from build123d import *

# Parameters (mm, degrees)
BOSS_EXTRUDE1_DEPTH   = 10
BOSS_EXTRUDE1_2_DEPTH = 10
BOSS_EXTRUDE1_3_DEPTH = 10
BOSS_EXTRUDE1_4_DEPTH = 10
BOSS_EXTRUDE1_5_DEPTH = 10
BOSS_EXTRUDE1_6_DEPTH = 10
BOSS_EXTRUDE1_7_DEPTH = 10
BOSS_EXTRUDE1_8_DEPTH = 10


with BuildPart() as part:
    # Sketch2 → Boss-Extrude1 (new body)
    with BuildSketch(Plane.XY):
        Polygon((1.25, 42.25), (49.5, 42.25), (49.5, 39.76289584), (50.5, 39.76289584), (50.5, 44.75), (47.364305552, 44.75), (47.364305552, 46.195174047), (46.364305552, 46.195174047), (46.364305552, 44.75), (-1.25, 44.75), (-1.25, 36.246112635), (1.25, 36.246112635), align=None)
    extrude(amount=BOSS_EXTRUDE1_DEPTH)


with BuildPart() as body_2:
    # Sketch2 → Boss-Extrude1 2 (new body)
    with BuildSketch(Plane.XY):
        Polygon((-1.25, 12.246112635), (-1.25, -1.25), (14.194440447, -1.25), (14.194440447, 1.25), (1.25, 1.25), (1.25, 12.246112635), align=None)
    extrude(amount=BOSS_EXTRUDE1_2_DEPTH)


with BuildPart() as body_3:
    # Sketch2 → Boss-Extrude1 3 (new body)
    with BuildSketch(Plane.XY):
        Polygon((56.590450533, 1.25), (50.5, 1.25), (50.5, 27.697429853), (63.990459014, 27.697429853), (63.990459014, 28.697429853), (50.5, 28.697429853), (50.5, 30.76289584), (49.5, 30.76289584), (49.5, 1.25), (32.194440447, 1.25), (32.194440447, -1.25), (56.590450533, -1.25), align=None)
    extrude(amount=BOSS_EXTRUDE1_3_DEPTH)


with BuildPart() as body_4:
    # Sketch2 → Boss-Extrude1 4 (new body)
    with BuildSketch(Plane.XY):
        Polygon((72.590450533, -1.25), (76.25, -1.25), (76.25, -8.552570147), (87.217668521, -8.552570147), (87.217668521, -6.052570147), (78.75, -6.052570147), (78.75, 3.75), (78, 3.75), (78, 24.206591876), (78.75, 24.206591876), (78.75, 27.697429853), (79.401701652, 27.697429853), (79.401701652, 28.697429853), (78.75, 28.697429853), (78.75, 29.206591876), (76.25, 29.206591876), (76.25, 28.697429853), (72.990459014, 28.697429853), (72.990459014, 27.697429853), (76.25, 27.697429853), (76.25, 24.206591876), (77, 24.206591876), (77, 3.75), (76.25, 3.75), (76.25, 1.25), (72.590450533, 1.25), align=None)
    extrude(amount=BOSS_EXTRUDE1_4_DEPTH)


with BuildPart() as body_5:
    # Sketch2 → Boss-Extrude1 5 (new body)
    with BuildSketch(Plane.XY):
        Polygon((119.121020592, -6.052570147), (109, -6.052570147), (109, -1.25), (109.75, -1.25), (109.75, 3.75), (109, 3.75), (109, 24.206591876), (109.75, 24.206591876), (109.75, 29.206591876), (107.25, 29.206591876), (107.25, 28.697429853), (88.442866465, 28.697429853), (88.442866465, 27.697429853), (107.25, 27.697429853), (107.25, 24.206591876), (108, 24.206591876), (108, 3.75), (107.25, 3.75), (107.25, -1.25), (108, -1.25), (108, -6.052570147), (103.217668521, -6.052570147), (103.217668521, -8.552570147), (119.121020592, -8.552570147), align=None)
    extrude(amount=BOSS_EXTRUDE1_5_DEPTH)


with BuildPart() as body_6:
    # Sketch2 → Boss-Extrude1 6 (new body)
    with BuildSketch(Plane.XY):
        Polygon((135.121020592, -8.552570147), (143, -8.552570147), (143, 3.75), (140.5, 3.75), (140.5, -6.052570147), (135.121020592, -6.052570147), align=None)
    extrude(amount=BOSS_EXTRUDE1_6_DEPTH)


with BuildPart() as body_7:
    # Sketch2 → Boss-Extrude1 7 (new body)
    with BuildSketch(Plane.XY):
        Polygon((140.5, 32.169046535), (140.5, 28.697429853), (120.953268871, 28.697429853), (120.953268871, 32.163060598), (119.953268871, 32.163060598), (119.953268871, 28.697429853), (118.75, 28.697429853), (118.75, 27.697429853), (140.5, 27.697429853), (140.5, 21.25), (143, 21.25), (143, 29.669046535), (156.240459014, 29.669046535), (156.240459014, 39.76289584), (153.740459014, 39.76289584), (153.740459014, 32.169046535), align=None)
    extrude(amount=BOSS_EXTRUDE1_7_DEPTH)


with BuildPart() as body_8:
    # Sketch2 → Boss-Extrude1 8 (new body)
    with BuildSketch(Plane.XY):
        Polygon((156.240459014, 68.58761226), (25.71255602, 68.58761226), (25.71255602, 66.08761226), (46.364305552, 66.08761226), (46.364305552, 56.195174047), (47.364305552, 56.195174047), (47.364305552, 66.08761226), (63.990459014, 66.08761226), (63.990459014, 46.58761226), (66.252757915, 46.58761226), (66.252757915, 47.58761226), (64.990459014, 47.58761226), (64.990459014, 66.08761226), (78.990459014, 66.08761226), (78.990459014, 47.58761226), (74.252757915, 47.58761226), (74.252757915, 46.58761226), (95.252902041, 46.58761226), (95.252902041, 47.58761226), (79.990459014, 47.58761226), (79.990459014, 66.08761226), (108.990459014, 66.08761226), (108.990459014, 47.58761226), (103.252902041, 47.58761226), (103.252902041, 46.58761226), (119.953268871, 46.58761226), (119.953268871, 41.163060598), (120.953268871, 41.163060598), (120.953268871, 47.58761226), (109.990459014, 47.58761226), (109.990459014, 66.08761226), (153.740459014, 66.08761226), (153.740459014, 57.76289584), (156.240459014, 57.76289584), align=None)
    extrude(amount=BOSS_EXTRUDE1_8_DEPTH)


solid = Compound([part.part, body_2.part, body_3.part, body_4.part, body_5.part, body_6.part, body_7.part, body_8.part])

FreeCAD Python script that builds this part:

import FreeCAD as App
import Part
import Sketcher

V = App.Vector

doc = App.newDocument("Part")
body = doc.addObject("PartDesign::Body", "Body")

# Sketch on XY plane
sketch1 = body.newObject("Sketcher::SketchObject", "Sketch")
sketch1.AttachmentSupport = (doc.getObject("XY_Plane"), [""])
sketch1.MapMode = "FlatFace"
sketch1.addGeometry(Part.LineSegment(V(1.25, 42.25, 0), V(49.5, 42.25, 0)), False)
sketch1.addGeometry(Part.LineSegment(V(49.5, 42.25, 0), V(49.5, 39.762896, 0)), False)
sketch1.addGeometry(Part.LineSegment(V(49.5, 39.762896, 0), V(50.5, 39.762896, 0)), False)
sketch1.addGeometry(Part.LineSegment(V(50.5, 39.762896, 0), V(50.5, 44.75, 0)), False)
sketch1.addGeometry(Part.LineSegment(V(50.5, 44.75, 0), V(47.364306, 44.75, 0)), False)
sketch1.addGeometry(Part.LineSegment(V(47.364306, 44.75, 0), V(47.364306, 46.195174, 0)), False)
sketch1.addGeometry(Part.LineSegment(V(47.364306, 46.195174, 0), V(46.364306, 46.195174, 0)), False)
sketch1.addGeometry(Part.LineSegment(V(46.364306, 46.195174, 0), V(46.364306, 44.75, 0)), False)
sketch1.addGeometry(Part.LineSegment(V(46.364306, 44.75, 0), V(-1.25, 44.75, 0)), False)
sketch1.addGeometry(Part.LineSegment(V(-1.25, 44.75, 0), V(-1.25, 36.246113, 0)), False)
sketch1.addGeometry(Part.LineSegment(V(-1.25, 36.246113, 0), V(1.25, 36.246113, 0)), False)
sketch1.addGeometry(Part.LineSegment(V(1.25, 36.246113, 0), V(1.25, 42.25, 0)), False)
sketch1.addConstraint(Sketcher.Constraint("Coincident", 0, 2, 1, 1))
sketch1.addConstraint(Sketcher.Constraint("Coincident", 1, 2, 2, 1))
sketch1.addConstraint(Sketcher.Constraint("Coincident", 2, 2, 3, 1))
sketch1.addConstraint(Sketcher.Constraint("Coincident", 3, 2, 4, 1))
sketch1.addConstraint(Sketcher.Constraint("Coincident", 4, 2, 5, 1))
sketch1.addConstraint(Sketcher.Constraint("Coincident", 5, 2, 6, 1))
sketch1.addConstraint(Sketcher.Constraint("Coincident", 6, 2, 7, 1))
sketch1.addConstraint(Sketcher.Constraint("Coincident", 7, 2, 8, 1))
sketch1.addConstraint(Sketcher.Constraint("Coincident", 8, 2, 9, 1))
sketch1.addConstraint(Sketcher.Constraint("Coincident", 9, 2, 10, 1))
sketch1.addConstraint(Sketcher.Constraint("Coincident", 10, 2, 11, 1))
sketch1.addConstraint(Sketcher.Constraint("Coincident", 11, 2, 0, 1))
sketch1.addConstraint(Sketcher.Constraint("Horizontal", 0))
sketch1.addConstraint(Sketcher.Constraint("Vertical", 1))
sketch1.addConstraint(Sketcher.Constraint("Horizontal", 2))
sketch1.addConstraint(Sketcher.Constraint("Vertical", 3))
sketch1.addConstraint(Sketcher.Constraint("Horizontal", 4))
sketch1.addConstraint(Sketcher.Constraint("Vertical", 5))
sketch1.addConstraint(Sketcher.Constraint("Horizontal", 6))
sketch1.addConstraint(Sketcher.Constraint("Vertical", 7))
sketch1.addConstraint(Sketcher.Constraint("Horizontal", 8))
sketch1.addConstraint(Sketcher.Constraint("Vertical", 9))
sketch1.addConstraint(Sketcher.Constraint("Horizontal", 10))
sketch1.addConstraint(Sketcher.Constraint("Vertical", 11))
sketch1.addConstraint(Sketcher.Constraint("Horizontal", 4, 2, 7, 2))
sketch1.addConstraint(Sketcher.Constraint("Equal", 2, 6))
sketch1.addConstraint(Sketcher.Constraint("DistanceX", 2, 1, 2, 2, 1.0))
sketch1.addConstraint(Sketcher.Constraint("DistanceX", 10, 1, 10, 2, 2.5))
sketch1.addConstraint(Sketcher.Constraint("DistanceX", 0, 1, 0, 2, 48.25))
sketch1.addConstraint(Sketcher.Constraint("DistanceX", -1, 1, 0, 2, 49.5))
sketch1.addConstraint(Sketcher.Constraint("DistanceY", 0, 2, 3, 2, 2.5))
sketch1.addConstraint(Sketcher.Constraint("DistanceY", -1, 1, 0, 2, 42.25))
sketch1.addConstraint(Sketcher.Constraint("DistanceX", 4, 2, 4, 1, 3.135694))
sketch1.addConstraint(Sketcher.Constraint("DistanceY", 1, 2, 1, 1, 2.487104))
sketch1.addConstraint(Sketcher.Constraint("DistanceY", 5, 1, 5, 2, 1.445174))
sketch1.addConstraint(Sketcher.Constraint("DistanceY", 9, 2, 9, 1, 8.503887))
pad1 = body.newObject("PartDesign::Pad", "Pad")
pad1.Profile = sketch1
pad1.Length = 10
body2 = doc.addObject("PartDesign::Body", "Body001")

# Sketch on XY plane
sketch2 = body2.newObject("Sketcher::SketchObject", "Sketch001")
sketch2.AttachmentSupport = (doc.getObject("XY_Plane001"), [""])
sketch2.MapMode = "FlatFace"
sketch2.addGeometry(Part.LineSegment(V(-1.25, 12.246113, 0), V(-1.25, -1.25, 0)), False)
sketch2.addGeometry(Part.LineSegment(V(-1.25, -1.25, 0), V(14.19444, -1.25, 0)), False)
sketch2.addGeometry(Part.LineSegment(V(14.19444, -1.25, 0), V(14.19444, 1.25, 0)), False)
sketch2.addGeometry(Part.LineSegment(V(14.19444, 1.25, 0), V(1.25, 1.25, 0)), False)
sketch2.addGeometry(Part.LineSegment(V(1.25, 1.25, 0), V(1.25, 12.246113, 0)), False)
sketch2.addGeometry(Part.LineSegment(V(1.25, 12.246113, 0), V(-1.25, 12.246113, 0)), False)
sketch2.addConstraint(Sketcher.Constraint("Coincident", 0, 2, 1, 1))
sketch2.addConstraint(Sketcher.Constraint("Coincident", 1, 2, 2, 1))
sketch2.addConstraint(Sketcher.Constraint("Coincident", 2, 2, 3, 1))
sketch2.addConstraint(Sketcher.Constraint("Coincident", 3, 2, 4, 1))
sketch2.addConstraint(Sketcher.Constraint("Coincident", 4, 2, 5, 1))
sketch2.addConstraint(Sketcher.Constraint("Coincident", 5, 2, 0, 1))
sketch2.addConstraint(Sketcher.Constraint("Vertical", 0))
sketch2.addConstraint(Sketcher.Constraint("Horizontal", 1))
sketch2.addConstraint(Sketcher.Constraint("Vertical", 2))
sketch2.addConstraint(Sketcher.Constraint("Horizontal", 3))
sketch2.addConstraint(Sketcher.Constraint("Vertical", 4))
sketch2.addConstraint(Sketcher.Constraint("Horizontal", 5))
sketch2.addConstraint(Sketcher.Constraint("Symmetric", 0, 2, 3, 2, -1, 1))
sketch2.addConstraint(Sketcher.Constraint("Equal", 5, 2))
sketch2.addConstraint(Sketcher.Constraint("DistanceX", 5, 2, 5, 1, 2.5))
sketch2.addConstraint(Sketcher.Constraint("DistanceX", 1, 1, 1, 2, 15.44444))
sketch2.addConstraint(Sketcher.Constraint("DistanceY", 0, 2, 0, 1, 13.496113))
pad2 = body2.newObject("PartDesign::Pad", "Pad001")
pad2.Profile = sketch2
pad2.Length = 10
body3 = doc.addObject("PartDesign::Body", "Body002")

# Sketch on XY plane
sketch3 = body3.newObject("Sketcher::SketchObject", "Sketch002")
sketch3.AttachmentSupport = (doc.getObject("XY_Plane002"), [""])
sketch3.MapMode = "FlatFace"
sketch3.addGeometry(Part.LineSegment(V(56.590451, 1.25, 0), V(50.5, 1.25, 0)), False)
sketch3.addGeometry(Part.LineSegment(V(50.5, 1.25, 0), V(50.5, 27.69743, 0)), False)
sketch3.addGeometry(Part.LineSegment(V(50.5, 27.69743, 0), V(63.990459, 27.69743, 0)), False)
sketch3.addGeometry(Part.LineSegment(V(63.990459, 27.69743, 0), V(63.990459, 28.69743, 0)), False)
sketch3.addGeometry(Part.LineSegment(V(63.990459, 28.69743, 0), V(50.5, 28.69743, 0)), False)
sketch3.addGeometry(Part.LineSegment(V(50.5, 28.69743, 0), V(50.5, 30.762896, 0)), False)
sketch3.addGeometry(Part.LineSegment(V(50.5, 30.762896, 0), V(49.5, 30.762896, 0)), False)
sketch3.addGeometry(Part.LineSegment(V(49.5, 30.762896, 0), V(49.5, 1.25, 0)), False)
sketch3.addGeometry(Part.LineSegment(V(49.5, 1.25, 0), V(32.19444, 1.25, 0)), False)
sketch3.addGeometry(Part.LineSegment(V(32.19444, 1.25, 0), V(32.19444, -1.25, 0)), False)
sketch3.addGeometry(Part.LineSegment(V(32.19444, -1.25, 0), V(56.590451, -1.25, 0)), False)
sketch3.addGeometry(Part.LineSegment(V(56.590451, -1.25, 0), V(56.590451, 1.25, 0)), False)
sketch3.addConstraint(Sketcher.Constraint("Coincident", 0, 2, 1, 1))
sketch3.addConstraint(Sketcher.Constraint("Coincident", 1, 2, 2, 1))
sketch3.addConstraint(Sketcher.Constraint("Coincident", 2, 2, 3, 1))
sketch3.addConstraint(Sketcher.Constraint("Coincident", 3, 2, 4, 1))
sketch3.addConstraint(Sketcher.Constraint("Coincident", 4, 2, 5, 1))
sketch3.addConstraint(Sketcher.Constraint("Coincident", 5, 2, 6, 1))
sketch3.addConstraint(Sketcher.Constraint("Coincident", 6, 2, 7, 1))
sketch3.addConstraint(Sketcher.Constraint("Coincident", 7, 2, 8, 1))
sketch3.addConstraint(Sketcher.Constraint("Coincident", 8, 2, 9, 1))
sketch3.addConstraint(Sketcher.Constraint("Coincident", 9, 2, 10, 1))
sketch3.addConstraint(Sketcher.Constraint("Coincident", 10, 2, 11, 1))
sketch3.addConstraint(Sketcher.Constraint("Coincident", 11, 2, 0, 1))
sketch3.addConstraint(Sketcher.Constraint("Horizontal", 0))
sketch3.addConstraint(Sketcher.Constraint("Vertical", 1))
sketch3.addConstraint(Sketcher.Constraint("Horizontal", 2))
sketch3.addConstraint(Sketcher.Constraint("Vertical", 3))
sketch3.addConstraint(Sketcher.Constraint("Horizontal", 4))
sketch3.addConstraint(Sketcher.Constraint("Vertical", 5))
sketch3.addConstraint(Sketcher.Constraint("Horizontal", 6))
sketch3.addConstraint(Sketcher.Constraint("Vertical", 7))
sketch3.addConstraint(Sketcher.Constraint("Horizontal", 8))
sketch3.addConstraint(Sketcher.Constraint("Vertical", 9))
sketch3.addConstraint(Sketcher.Constraint("Horizontal", 10))
sketch3.addConstraint(Sketcher.Constraint("Vertical", 11))
sketch3.addConstraint(Sketcher.Constraint("Horizontal", 0, 2, 7, 2))
sketch3.addConstraint(Sketcher.Constraint("Vertical", 1, 2, 4, 2))
sketch3.addConstraint(Sketcher.Constraint("Equal", 6, 3))
sketch3.addConstraint(Sketcher.Constraint("DistanceX", 6, 2, 6, 1, 1.0))
sketch3.addConstraint(Sketcher.Constraint("DistanceY", 9, 2, 9, 1, 2.5))
sketch3.addConstraint(Sketcher.Constraint("DistanceX", -1, 1, 0, 2, 50.5))
sketch3.addConstraint(Sketcher.Constraint("DistanceY", -1, 1, 0, 2, 1.25))
sketch3.addConstraint(Sketcher.Constraint("DistanceX", 0, 2, 0, 1, 6.090451))
sketch3.addConstraint(Sketcher.Constraint("DistanceX", 2, 1, 2, 2, 13.490459))
sketch3.addConstraint(Sketcher.Constraint("DistanceX", 8, 2, 8, 1, 17.30556))
sketch3.addConstraint(Sketcher.Constraint("DistanceY", 1, 1, 1, 2, 26.44743))
sketch3.addConstraint(Sketcher.Constraint("DistanceY", 5, 1, 5, 2, 2.065466))
pad3 = body3.newObject("PartDesign::Pad", "Pad002")
pad3.Profile = sketch3
pad3.Length = 10
body4 = doc.addObject("PartDesign::Body", "Body003")

# Sketch on XY plane
sketch4 = body4.newObject("Sketcher::SketchObject", "Sketch003")
sketch4.AttachmentSupport = (doc.getObject("XY_Plane003"), [""])
sketch4.MapMode = "FlatFace"
sketch4.addGeometry(Part.LineSegment(V(72.590451, -1.25, 0), V(76.25, -1.25, 0)), False)
sketch4.addGeometry(Part.LineSegment(V(76.25, -1.25, 0), V(76.25, -8.55257, 0)), False)
sketch4.addGeometry(Part.LineSegment(V(76.25, -8.55257, 0), V(87.217669, -8.55257, 0)), False)
sketch4.addGeometry(Part.LineSegment(V(87.217669, -8.55257, 0), V(87.217669, -6.05257, 0)), False)
sketch4.addGeometry(Part.LineSegment(V(87.217669, -6.05257, 0), V(78.75, -6.05257, 0)), False)
sketch4.addGeometry(Part.LineSegment(V(78.75, -6.05257, 0), V(78.75, 3.75, 0)), False)
sketch4.addGeometry(Part.LineSegment(V(78.75, 3.75, 0), V(78, 3.75, 0)), False)
sketch4.addGeometry(Part.LineSegment(V(78, 3.75, 0), V(78, 24.206592, 0)), False)
sketch4.addGeometry(Part.LineSegment(V(78, 24.206592, 0), V(78.75, 24.206592, 0)), False)
sketch4.addGeometry(Part.LineSegment(V(78.75, 24.206592, 0), V(78.75, 27.69743, 0)), False)
sketch4.addGeometry(Part.LineSegment(V(78.75, 27.69743, 0), V(79.401702, 27.69743, 0)), False)
sketch4.addGeometry(Part.LineSegment(V(79.401702, 27.69743, 0), V(79.401702, 28.69743, 0)), False)
sketch4.addGeometry(Part.LineSegment(V(79.401702, 28.69743, 0), V(78.75, 28.69743, 0)), False)
sketch4.addGeometry(Part.LineSegment(V(78.75, 28.69743, 0), V(78.75, 29.206592, 0)), False)
sketch4.addGeometry(Part.LineSegment(V(78.75, 29.206592, 0), V(76.25, 29.206592, 0)), False)
sketch4.addGeometry(Part.LineSegment(V(76.25, 29.206592, 0), V(76.25, 28.69743, 0)), False)
sketch4.addGeometry(Part.LineSegment(V(76.25, 28.69743, 0), V(72.990459, 28.69743, 0)), False)
sketch4.addGeometry(Part.LineSegment(V(72.990459, 28.69743, 0), V(72.990459, 27.69743, 0)), False)
sketch4.addGeometry(Part.LineSegment(V(72.990459, 27.69743, 0), V(76.25, 27.69743, 0)), False)
sketch4.addGeometry(Part.LineSegment(V(76.25, 27.69743, 0), V(76.25, 24.206592, 0)), False)
sketch4.addGeometry(Part.LineSegment(V(76.25, 24.206592, 0), V(77, 24.206592, 0)), False)
sketch4.addGeometry(Part.LineSegment(V(77, 24.206592, 0), V(77, 3.75, 0)), False)
sketch4.addGeometry(Part.LineSegment(V(77, 3.75, 0), V(76.25, 3.75, 0)), False)
sketch4.addGeometry(Part.LineSegment(V(76.25, 3.75, 0), V(76.25, 1.25, 0)), False)
sketch4.addGeometry(Part.LineSegment(V(76.25, 1.25, 0), V(72.590451, 1.25, 0)), False)
sketch4.addGeometry(Part.LineSegment(V(72.590451, 1.25, 0), V(72.590451, -1.25, 0)), False)
sketch4.addConstraint(Sketcher.Constraint("Coincident", 0, 2, 1, 1))
sketch4.addConstraint(Sketcher.Constraint("Coincident", 1, 2, 2, 1))
sketch4.addConstraint(Sketcher.Constraint("Coincident", 2, 2, 3, 1))
sketch4.addConstraint(Sketcher.Constraint("Coincident", 3, 2, 4, 1))
sketch4.addConstraint(Sketcher.Constraint("Coincident", 4, 2, 5, 1))
sketch4.addConstraint(Sketcher.Constraint("Coincident", 5, 2, 6, 1))
sketch4.addConstraint(Sketcher.Constraint("Coincident", 6, 2, 7, 1))
sketch4.addConstraint(Sketcher.Constraint("Coincident", 7, 2, 8, 1))
sketch4.addConstraint(Sketcher.Constraint("Coincident", 8, 2, 9, 1))
sketch4.addConstraint(Sketcher.Constraint("Coincident", 9, 2, 10, 1))
sketch4.addConstraint(Sketcher.Constraint("Coincident", 10, 2, 11, 1))
sketch4.addConstraint(Sketcher.Constraint("Coincident", 11, 2, 12, 1))
sketch4.addConstraint(Sketcher.Constraint("Coincident", 12, 2, 13, 1))
sketch4.addConstraint(Sketcher.Constraint("Coincident", 13, 2, 14, 1))
sketch4.addConstraint(Sketcher.Constraint("Coincident", 14, 2, 15, 1))
sketch4.addConstraint(Sketcher.Constraint("Coincident", 15, 2, 16, 1))
sketch4.addConstraint(Sketcher.Constraint("Coincident", 16, 2, 17, 1))
sketch4.addConstraint(Sketcher.Constraint("Coincident", 17, 2, 18, 1))
sketch4.addConstraint(Sketcher.Constraint("Coincident", 18, 2, 19, 1))
sketch4.addConstraint(Sketcher.Constraint("Coincident", 19, 2, 20, 1))
sketch4.addConstraint(Sketcher.Constraint("Coincident", 20, 2, 21, 1))
sketch4.addConstraint(Sketcher.Constraint("Coincident", 21, 2, 22, 1))
sketch4.addConstraint(Sketcher.Constraint("Coincident", 22, 2, 23, 1))
sketch4.addConstraint(Sketcher.Constraint("Coincident", 23, 2, 24, 1))
sketch4.addConstraint(Sketcher.Constraint("Coincident", 24, 2, 25, 1))
sketch4.addConstraint(Sketcher.Constraint("Coincident", 25, 2, 0, 1))
sketch4.addConstraint(Sketcher.Constraint("Horizontal", 0))
sketch4.addConstraint(Sketcher.Constraint("Vertical", 1))
sketch4.addConstraint(Sketcher.Constraint("Horizontal", 2))
sketch4.addConstraint(Sketcher.Constraint("Vertical", 3))
sketch4.addConstraint(Sketcher.Constraint("Horizontal", 4))
sketch4.addConstraint(Sketcher.Constraint("Vertical", 5))
sketch4.addConstraint(Sketcher.Constraint("Horizontal", 6))
sketch4.addConstraint(Sketcher.Constraint("Vertical", 7))
sketch4.addConstraint(Sketcher.Constraint("Horizontal", 8))
sketch4.addConstraint(Sketcher.Constraint("Vertical", 9))
sketch4.addConstraint(Sketcher.Constraint("Horizontal", 10))
sketch4.addConstraint(Sketcher.Constraint("Vertical", 11))
sketch4.addConstraint(Sketcher.Constraint("Horizontal", 12))
sketch4.addConstraint(Sketcher.Constraint("Vertical", 13))
sketch4.addConstraint(Sketcher.Constraint("Horizontal", 14))
sketch4.addConstraint(Sketcher.Constraint("Vertical", 15))
sketch4.addConstraint(Sketcher.Constraint("Horizontal", 16))
sketch4.addConstraint(Sketcher.Constraint("Vertical", 17))
sketch4.addConstraint(Sketcher.Constraint("Horizontal", 18))
sketch4.addConstraint(Sketcher.Constraint("Vertical", 19))
sketch4.addConstraint(Sketcher.Constraint("Horizontal", 20))
sketch4.addConstraint(Sketcher.Constraint("Vertical", 21))
sketch4.addConstraint(Sketcher.Constraint("Horizontal", 22))
sketch4.addConstraint(Sketcher.Constraint("Vertical", 23))
sketch4.addConstraint(Sketcher.Constraint("Horizontal", 24))
sketch4.addConstraint(Sketcher.Constraint("Vertical", 25))
sketch4.addConstraint(Sketcher.Constraint("Symmetric", 0, 2, 23, 2, -1))
sketch4.addConstraint(Sketcher.Constraint("Horizontal", 12, 2, 15, 2))
sketch4.addConstraint(Sketcher.Constraint("Horizontal", 10, 2, 17, 2))
sketch4.addConstraint(Sketcher.Constraint("Horizontal", 8, 2, 19, 2))
sketch4.addConstraint(Sketcher.Constraint("Horizontal", 6, 2, 21, 2))
sketch4.addConstraint(Sketcher.Constraint("Vertical", 5, 2, 8, 2))
sketch4.addConstraint(Sketcher.Constraint("Vertical", 9, 2, 12, 2))
sketch4.addConstraint(Sketcher.Constraint("Vertical", 1, 2, 14, 2))
sketch4.addConstraint(Sketcher.Constraint("Vertical", 15, 2, 18, 2))
sketch4.addConstraint(Sketcher.Constraint("Equal", 8, 20))
sketch4.addConstraint(Sketcher.Constraint("Equal", 14, 3))
sketch4.addConstraint(Sketcher.Constraint("Equal", 3, 23))
sketch4.addConstraint(Sketcher.Constraint("Equal", 23, 25))
sketch4.addConstraint(Sketcher.Constraint("DistanceY", 11, 1, 11, 2, 1.0))
sketch4.addConstraint(Sketcher.Constraint("DistanceX", 14, 2, 14, 1, 2.5))
sketch4.addConstraint(Sketcher.Constraint("DistanceX", -1, 1, 6, 2, 78.0))
sketch4.addConstraint(Sketcher.Constraint("DistanceX", -1, 1, 20, 2, 77.0))
sketch4.addConstraint(Sketcher.Constraint("DistanceY", 8, 2, 13, 2, 5.0))
sketch4.addConstraint(Sketcher.Constraint("DistanceX", 10, 1, 10, 2, 0.651702))
sketch4.addConstraint(Sketcher.Constraint("DistanceX", 0, 1, 0, 2, 3.659549))
sketch4.addConstraint(Sketcher.Constraint("DistanceX", 2, 1, 2, 2, 10.967669))
sketch4.addConstraint(Sketcher.Constraint("DistanceX", 16, 2, 16, 1, 3.259541))
sketch4.addConstraint(Sketcher.Constraint("DistanceY", 1, 2, 1, 1, 7.30257))
sketch4.addConstraint(Sketcher.Constraint("DistanceY", 7, 1, 7, 2, 20.456592))
sketch4.addConstraint(Sketcher.Constraint("DistanceY", 9, 1, 9, 2, 3.490838))
pad4 = body4.newObject("PartDesign::Pad", "Pad003")
pad4.Profile = sketch4
pad4.Length = 10
body5 = doc.addObject("PartDesign::Body", "Body004")

# Sketch on XY plane
sketch5 = body5.newObject("Sketcher::SketchObject", "Sketch004")
sketch5.AttachmentSupport = (doc.getObject("XY_Plane004"), [""])
sketch5.MapMode = "FlatFace"
sketch5.addGeometry(Part.LineSegment(V(119.121021, -6.05257, 0), V(109, -6.05257, 0)), False)
sketch5.addGeometry(Part.LineSegment(V(109, -6.05257, 0), V(109, -1.25, 0)), False)
sketch5.addGeometry(Part.LineSegment(V(109, -1.25, 0), V(109.75, -1.25, 0)), False)
sketch5.addGeometry(Part.LineSegment(V(109.75, -1.25, 0), V(109.75, 3.75, 0)), False)
sketch5.addGeometry(Part.LineSegment(V(109.75, 3.75, 0), V(109, 3.75, 0)), False)
sketch5.addGeometry(Part.LineSegment(V(109, 3.75, 0), V(109, 24.206592, 0)), False)
sketch5.addGeometry(Part.LineSegment(V(109, 24.206592, 0), V(109.75, 24.206592, 0)), False)
sketch5.addGeometry(Part.LineSegment(V(109.75, 24.206592, 0), V(109.75, 29.206592, 0)), False)
sketch5.addGeometry(Part.LineSegment(V(109.75, 29.206592, 0), V(107.25, 29.206592, 0)), False)
sketch5.addGeometry(Part.LineSegment(V(107.25, 29.206592, 0), V(107.25, 28.69743, 0)), False)
sketch5.addGeometry(Part.LineSegment(V(107.25, 28.69743, 0), V(88.442866, 28.69743, 0)), False)
sketch5.addGeometry(Part.LineSegment(V(88.442866, 28.69743, 0), V(88.442866, 27.69743, 0)), False)
sketch5.addGeometry(Part.LineSegment(V(88.442866, 27.69743, 0), V(107.25, 27.69743, 0)), False)
sketch5.addGeometry(Part.LineSegment(V(107.25, 27.69743, 0), V(107.25, 24.206592, 0)), False)
sketch5.addGeometry(Part.LineSegment(V(107.25, 24.206592, 0), V(108, 24.206592, 0)), False)
sketch5.addGeometry(Part.LineSegment(V(108, 24.206592, 0), V(108, 3.75, 0)), False)
sketch5.addGeometry(Part.LineSegment(V(108, 3.75, 0), V(107.25, 3.75, 0)), False)
sketch5.addGeometry(Part.LineSegment(V(107.25, 3.75, 0), V(107.25, -1.25, 0)), False)
sketch5.addGeometry(Part.LineSegment(V(107.25, -1.25, 0), V(108, -1.25, 0)), False)
sketch5.addGeometry(Part.LineSegment(V(108, -1.25, 0), V(108, -6.05257, 0)), False)
sketch5.addGeometry(Part.LineSegment(V(108, -6.05257, 0), V(103.217669, -6.05257, 0)), False)
sketch5.addGeometry(Part.LineSegment(V(103.217669, -6.05257, 0), V(103.217669, -8.55257, 0)), False)
sketch5.addGeometry(Part.LineSegment(V(103.217669, -8.55257, 0), V(119.121021, -8.55257, 0)), False)
sketch5.addGeometry(Part.LineSegment(V(119.121021, -8.55257, 0), V(119.121021, -6.05257, 0)), False)
sketch5.addConstraint(Sketcher.Constraint("Coincident", 0, 2, 1, 1))
sketch5.addConstraint(Sketcher.Constraint("Coincident", 1, 2, 2, 1))
sketch5.addConstraint(Sketcher.Constraint("Coincident", 2, 2, 3, 1))
sketch5.addConstraint(Sketcher.Constraint("Coincident", 3, 2, 4, 1))
sketch5.addConstraint(Sketcher.Constraint("Coincident", 4, 2, 5, 1))
sketch5.addConstraint(Sketcher.Constraint("Coincident", 5, 2, 6, 1))
sketch5.addConstraint(Sketcher.Constraint("Coincident", 6, 2, 7, 1))
sketch5.addConstraint(Sketcher.Constraint("Coincident", 7, 2, 8, 1))
sketch5.addConstraint(Sketcher.Constraint("Coincident", 8, 2, 9, 1))
sketch5.addConstraint(Sketcher.Constraint("Coincident", 9, 2, 10, 1))
sketch5.addConstraint(Sketcher.Constraint("Coincident", 10, 2, 11, 1))
sketch5.addConstraint(Sketcher.Constraint("Coincident", 11, 2, 12, 1))
sketch5.addConstraint(Sketcher.Constraint("Coincident", 12, 2, 13, 1))
sketch5.addConstraint(Sketcher.Constraint("Coincident", 13, 2, 14, 1))
sketch5.addConstraint(Sketcher.Constraint("Coincident", 14, 2, 15, 1))
sketch5.addConstraint(Sketcher.Constraint("Coincident", 15, 2, 16, 1))
sketch5.addConstraint(Sketcher.Constraint("Coincident", 16, 2, 17, 1))
sketch5.addConstraint(Sketcher.Constraint("Coincident", 17, 2, 18, 1))
sketch5.addConstraint(Sketcher.Constraint("Coincident", 18, 2, 19, 1))
sketch5.addConstraint(Sketcher.Constraint("Coincident", 19, 2, 20, 1))
sketch5.addConstraint(Sketcher.Constraint("Coincident", 20, 2, 21, 1))
sketch5.addConstraint(Sketcher.Constraint("Coincident", 21, 2, 22, 1))
sketch5.addConstraint(Sketcher.Constraint("Coincident", 22, 2, 23, 1))
sketch5.addConstraint(Sketcher.Constraint("Coincident", 23, 2, 0, 1))
sketch5.addConstraint(Sketcher.Constraint("Horizontal", 0))
sketch5.addConstraint(Sketcher.Constraint("Vertical", 1))
sketch5.addConstraint(Sketcher.Constraint("Horizontal", 2))
sketch5.addConstraint(Sketcher.Constraint("Vertical", 3))
sketch5.addConstraint(Sketcher.Constraint("Horizontal", 4))
sketch5.addConstraint(Sketcher.Constraint("Vertical", 5))
sketch5.addConstraint(Sketcher.Constraint("Horizontal", 6))
sketch5.addConstraint(Sketcher.Constraint("Vertical", 7))
sketch5.addConstraint(Sketcher.Constraint("Horizontal", 8))
sketch5.addConstraint(Sketcher.Constraint("Vertical", 9))
sketch5.addConstraint(Sketcher.Constraint("Horizontal", 10))
sketch5.addConstraint(Sketcher.Constraint("Vertical", 11))
sketch5.addConstraint(Sketcher.Constraint("Horizontal", 12))
sketch5.addConstraint(Sketcher.Constraint("Vertical", 13))
sketch5.addConstraint(Sketcher.Constraint("Horizontal", 14))
sketch5.addConstraint(Sketcher.Constraint("Vertical", 15))
sketch5.addConstraint(Sketcher.Constraint("Horizontal", 16))
sketch5.addConstraint(Sketcher.Constraint("Vertical", 17))
sketch5.addConstraint(Sketcher.Constraint("Horizontal", 18))
sketch5.addConstraint(Sketcher.Constraint("Vertical", 19))
sketch5.addConstraint(Sketcher.Constraint("Horizontal", 20))
sketch5.addConstraint(Sketcher.Constraint("Vertical", 21))
sketch5.addConstraint(Sketcher.Constraint("Horizontal", 22))
sketch5.addConstraint(Sketcher.Constraint("Vertical", 23))
sketch5.addConstraint(Sketcher.Constraint("Horizontal", 6, 2, 13, 2))
sketch5.addConstraint(Sketcher.Constraint("Horizontal", 4, 2, 15, 2))
sketch5.addConstraint(Sketcher.Constraint("Horizontal", 2, 2, 17, 2))
sketch5.addConstraint(Sketcher.Constraint("Horizontal", 0, 2, 19, 2))
sketch5.addConstraint(Sketcher.Constraint("Vertical", 1, 2, 4, 2))
sketch5.addConstraint(Sketcher.Constraint("Vertical", 3, 2, 6, 2))
sketch5.addConstraint(Sketcher.Constraint("Vertical", 9, 2, 12, 2))
sketch5.addConstraint(Sketcher.Constraint("Vertical", 13, 2, 16, 2))
sketch5.addConstraint(Sketcher.Constraint("Vertical", 15, 2, 18, 2))
sketch5.addConstraint(Sketcher.Constraint("Equal", 6, 14))
sketch5.addConstraint(Sketcher.Constraint("Equal", 3, 7))
sketch5.addConstraint(Sketcher.Constraint("Equal", 8, 21))
sketch5.addConstraint(Sketcher.Constraint("DistanceY", 3, 1, 3, 2, 5.0))
sketch5.addConstraint(Sketcher.Constraint("DistanceY", 11, 2, 11, 1, 1.0))
sketch5.addConstraint(Sketcher.Constraint("DistanceX", 8, 2, 8, 1, 2.5))
sketch5.addConstraint(Sketcher.Constraint("DistanceX", -1, 1, 0, 2, 109.0))
sketch5.addConstraint(Sketcher.Constraint("DistanceX", -1, 1, 14, 2, 108.0))
sketch5.addConstraint(Sketcher.Constraint("DistanceY", 1, 2, -1, 1, 1.25))
sketch5.addConstraint(Sketcher.Constraint("DistanceX", 0, 2, 0, 1, 10.121021))
sketch5.addConstraint(Sketcher.Constraint("DistanceX", 20, 2, 20, 1, 4.782331))
sketch5.addConstraint(Sketcher.Constraint("DistanceY", 1, 1, 1, 2, 4.80257))
sketch5.addConstraint(Sketcher.Constraint("DistanceY", 5, 1, 5, 2, 20.456592))
sketch5.addConstraint(Sketcher.Constraint("DistanceX", 10, 2, 10, 1, 18.807134))
sketch5.addConstraint(Sketcher.Constraint("DistanceY", 9, 2, 9, 1, 0.509162))
pad5 = body5.newObject("PartDesign::Pad", "Pad004")
pad5.Profile = sketch5
pad5.Length = 10
body6 = doc.addObject("PartDesign::Body", "Body005")

# Sketch on XY plane
sketch6 = body6.newObject("Sketcher::SketchObject", "Sketch005")
sketch6.AttachmentSupport = (doc.getObject("XY_Plane005"), [""])
sketch6.MapMode = "FlatFace"
sketch6.addGeometry(Part.LineSegment(V(135.121021, -8.55257, 0), V(143, -8.55257, 0)), False)
sketch6.addGeometry(Part.LineSegment(V(143, -8.55257, 0), V(143, 3.75, 0)), False)
sketch6.addGeometry(Part.LineSegment(V(143, 3.75, 0), V(140.5, 3.75, 0)), False)
sketch6.addGeometry(Part.LineSegment(V(140.5, 3.75, 0), V(140.5, -6.05257, 0)), False)
sketch6.addGeometry(Part.LineSegment(V(140.5, -6.05257, 0), V(135.121021, -6.05257, 0)), False)
sketch6.addGeometry(Part.LineSegment(V(135.121021, -6.05257, 0), V(135.121021, -8.55257, 0)), False)
sketch6.addConstraint(Sketcher.Constraint("Coincident", 0, 2, 1, 1))
sketch6.addConstraint(Sketcher.Constraint("Coincident", 1, 2, 2, 1))
sketch6.addConstraint(Sketcher.Constraint("Coincident", 2, 2, 3, 1))
sketch6.addConstraint(Sketcher.Constraint("Coincident", 3, 2, 4, 1))
sketch6.addConstraint(Sketcher.Constraint("Coincident", 4, 2, 5, 1))
sketch6.addConstraint(Sketcher.Constraint("Coincident", 5, 2, 0, 1))
sketch6.addConstraint(Sketcher.Constraint("Horizontal", 0))
sketch6.addConstraint(Sketcher.Constraint("Vertical", 1))
sketch6.addConstraint(Sketcher.Constraint("Horizontal", 2))
sketch6.addConstraint(Sketcher.Constraint("Vertical", 3))
sketch6.addConstraint(Sketcher.Constraint("Horizontal", 4))
sketch6.addConstraint(Sketcher.Constraint("Vertical", 5))
sketch6.addConstraint(Sketcher.Constraint("Equal", 2, 5))
sketch6.addConstraint(Sketcher.Constraint("DistanceX", 2, 2, 2, 1, 2.5))
sketch6.addConstraint(Sketcher.Constraint("DistanceX", -1, 1, 0, 2, 143.0))
sketch6.addConstraint(Sketcher.Constraint("DistanceY", -1, 1, 1, 2, 3.75))
sketch6.addConstraint(Sketcher.Constraint("DistanceX", 0, 1, 0, 2, 7.878979))
sketch6.addConstraint(Sketcher.Constraint("DistanceY", 1, 1, 1, 2, 12.30257))
pad6 = body6.newObject("PartDesign::Pad", "Pad005")
pad6.Profile = sketch6
pad6.Length = 10
body7 = doc.addObject("PartDesign::Body", "Body006")

# Sketch on XY plane
sketch7 = body7.newObject("Sketcher::SketchObject", "Sketch006")
sketch7.AttachmentSupport = (doc.getObject("XY_Plane006"), [""])
sketch7.MapMode = "FlatFace"
sketch7.addGeometry(Part.LineSegment(V(140.5, 32.169047, 0), V(140.5, 28.69743, 0)), False)
sketch7.addGeometry(Part.LineSegment(V(140.5, 28.69743, 0), V(120.953269, 28.69743, 0)), False)
sketch7.addGeometry(Part.LineSegment(V(120.953269, 28.69743, 0), V(120.953269, 32.163061, 0)), False)
sketch7.addGeometry(Part.LineSegment(V(120.953269, 32.163061, 0), V(119.953269, 32.163061, 0)), False)
sketch7.addGeometry(Part.LineSegment(V(119.953269, 32.163061, 0), V(119.953269, 28.69743, 0)), False)
sketch7.addGeometry(Part.LineSegment(V(119.953269, 28.69743, 0), V(118.75, 28.69743, 0)), False)
sketch7.addGeometry(Part.LineSegment(V(118.75, 28.69743, 0), V(118.75, 27.69743, 0)), False)
sketch7.addGeometry(Part.LineSegment(V(118.75, 27.69743, 0), V(140.5, 27.69743, 0)), False)
sketch7.addGeometry(Part.LineSegment(V(140.5, 27.69743, 0), V(140.5, 21.25, 0)), False)
sketch7.addGeometry(Part.LineSegment(V(140.5, 21.25, 0), V(143, 21.25, 0)), False)
sketch7.addGeometry(Part.LineSegment(V(143, 21.25, 0), V(143, 29.669047, 0)), False)
sketch7.addGeometry(Part.LineSegment(V(143, 29.669047, 0), V(156.240459, 29.669047, 0)), False)
sketch7.addGeometry(Part.LineSegment(V(156.240459, 29.669047, 0), V(156.240459, 39.762896, 0)), False)
sketch7.addGeometry(Part.LineSegment(V(156.240459, 39.762896, 0), V(153.740459, 39.762896, 0)), False)
sketch7.addGeometry(Part.LineSegment(V(153.740459, 39.762896, 0), V(153.740459, 32.169047, 0)), False)
sketch7.addGeometry(Part.LineSegment(V(153.740459, 32.169047, 0), V(140.5, 32.169047, 0)), False)
sketch7.addConstraint(Sketcher.Constraint("Coincident", 0, 2, 1, 1))
sketch7.addConstraint(Sketcher.Constraint("Coincident", 1, 2, 2, 1))
sketch7.addConstraint(Sketcher.Constraint("Coincident", 2, 2, 3, 1))
sketch7.addConstraint(Sketcher.Constraint("Coincident", 3, 2, 4, 1))
sketch7.addConstraint(Sketcher.Constraint("Coincident", 4, 2, 5, 1))
sketch7.addConstraint(Sketcher.Constraint("Coincident", 5, 2, 6, 1))
sketch7.addConstraint(Sketcher.Constraint("Coincident", 6, 2, 7, 1))
sketch7.addConstraint(Sketcher.Constraint("Coincident", 7, 2, 8, 1))
sketch7.addConstraint(Sketcher.Constraint("Coincident", 8, 2, 9, 1))
sketch7.addConstraint(Sketcher.Constraint("Coincident", 9, 2, 10, 1))
sketch7.addConstraint(Sketcher.Constraint("Coincident", 10, 2, 11, 1))
sketch7.addConstraint(Sketcher.Constraint("Coincident", 11, 2, 12, 1))
sketch7.addConstraint(Sketcher.Constraint("Coincident", 12, 2, 13, 1))
sketch7.addConstraint(Sketcher.Constraint("Coincident", 13, 2, 14, 1))
sketch7.addConstraint(Sketcher.Constraint("Coincident", 14, 2, 15, 1))
sketch7.addConstraint(Sketcher.Constraint("Coincident", 15, 2, 0, 1))
sketch7.addConstraint(Sketcher.Constraint("Vertical", 0))
sketch7.addConstraint(Sketcher.Constraint("Horizontal", 1))
sketch7.addConstraint(Sketcher.Constraint("Vertical", 2))
sketch7.addConstraint(Sketcher.Constraint("Horizontal", 3))
sketch7.addConstraint(Sketcher.Constraint("Vertical", 4))
sketch7.addConstraint(Sketcher.Constraint("Horizontal", 5))
sketch7.addConstraint(Sketcher.Constraint("Vertical", 6))
sketch7.addConstraint(Sketcher.Constraint("Horizontal", 7))
sketch7.addConstraint(Sketcher.Constraint("Vertical", 8))
sketch7.addConstraint(Sketcher.Constraint("Horizontal", 9))
sketch7.addConstraint(Sketcher.Constraint("Vertical", 10))
sketch7.addConstraint(Sketcher.Constraint("Horizontal", 11))
sketch7.addConstraint(Sketcher.Constraint("Vertical", 12))
sketch7.addConstraint(Sketcher.Constraint("Horizontal", 13))
sketch7.addConstraint(Sketcher.Constraint("Vertical", 14))
sketch7.addConstraint(Sketcher.Constraint("Horizontal", 15))
sketch7.addConstraint(Sketcher.Constraint("Horizontal", 1, 2, 4, 2))
sketch7.addConstraint(Sketcher.Constraint("Vertical", 0, 2, 7, 2))
sketch7.addConstraint(Sketcher.Constraint("Equal", 9, 13))
sketch7.addConstraint(Sketcher.Constraint("Equal", 3, 6))
sketch7.addConstraint(Sketcher.Constraint("DistanceX", 3, 2, 3, 1, 1.0))
sketch7.addConstraint(Sketcher.Constraint("DistanceX", 9, 1, 9, 2, 2.5))
sketch7.addConstraint(Sketcher.Constraint("DistanceX", -1, 1, 9, 2, 143.0))
sketch7.addConstraint(Sketcher.Constraint("DistanceX", 7, 1, 7, 2, 21.75))
sketch7.addConstraint(Sketcher.Constraint("DistanceY", 11, 2, 14, 2, 2.5))
sketch7.addConstraint(Sketcher.Constraint("DistanceY", -1, 1, 8, 2, 21.25))
sketch7.addConstraint(Sketcher.Constraint("DistanceX", 1, 2, 1, 1, 19.546731))
sketch7.addConstraint(Sketcher.Constraint("DistanceX", 11, 1, 11, 2, 13.240459))
sketch7.addConstraint(Sketcher.Constraint("DistanceY", 2, 1, 2, 2, 3.465631))
sketch7.addConstraint(Sketcher.Constraint("DistanceY", 8, 2, 8, 1, 6.44743))
sketch7.addConstraint(Sketcher.Constraint("DistanceY", 12, 1, 12, 2, 10.093849))
sketch7.addConstraint(Sketcher.Constraint("DistanceY", 0, 2, 0, 1, 3.471617))
pad7 = body7.newObject("PartDesign::Pad", "Pad006")
pad7.Profile = sketch7
pad7.Length = 10
body8 = doc.addObject("PartDesign::Body", "Body007")

# Sketch on XY plane
sketch8 = body8.newObject("Sketcher::SketchObject", "Sketch007")
sketch8.AttachmentSupport = (doc.getObject("XY_Plane007"), [""])
sketch8.MapMode = "FlatFace"
sketch8.addGeometry(Part.LineSegment(V(156.240459, 68.587612, 0), V(25.712556, 68.587612, 0)), False)
sketch8.addGeometry(Part.LineSegment(V(25.712556, 68.587612, 0), V(25.712556, 66.087612, 0)), False)
sketch8.addGeometry(Part.LineSegment(V(25.712556, 66.087612, 0), V(46.364306, 66.087612, 0)), False)
sketch8.addGeometry(Part.LineSegment(V(46.364306, 66.087612, 0), V(46.364306, 56.195174, 0)), False)
sketch8.addGeometry(Part.LineSegment(V(46.364306, 56.195174, 0), V(47.364306, 56.195174, 0)), False)
sketch8.addGeometry(Part.LineSegment(V(47.364306, 56.195174, 0), V(47.364306, 66.087612, 0)), False)
sketch8.addGeometry(Part.LineSegment(V(47.364306, 66.087612, 0), V(63.990459, 66.087612, 0)), False)
sketch8.addGeometry(Part.LineSegment(V(63.990459, 66.087612, 0), V(63.990459, 46.587612, 0)), False)
sketch8.addGeometry(Part.LineSegment(V(63.990459, 46.587612, 0), V(66.252758, 46.587612, 0)), False)
sketch8.addGeometry(Part.LineSegment(V(66.252758, 46.587612, 0), V(66.252758, 47.587612, 0)), False)
sketch8.addGeometry(Part.LineSegment(V(66.252758, 47.587612, 0), V(64.990459, 47.587612, 0)), False)
sketch8.addGeometry(Part.LineSegment(V(64.990459, 47.587612, 0), V(64.990459, 66.087612, 0)), False)
sketch8.addGeometry(Part.LineSegment(V(64.990459, 66.087612, 0), V(78.990459, 66.087612, 0)), False)
sketch8.addGeometry(Part.LineSegment(V(78.990459, 66.087612, 0), V(78.990459, 47.587612, 0)), False)
sketch8.addGeometry(Part.LineSegment(V(78.990459, 47.587612, 0), V(74.252758, 47.587612, 0)), False)
sketch8.addGeometry(Part.LineSegment(V(74.252758, 47.587612, 0), V(74.252758, 46.587612, 0)), False)
sketch8.addGeometry(Part.LineSegment(V(74.252758, 46.587612, 0), V(95.252902, 46.587612, 0)), False)
sketch8.addGeometry(Part.LineSegment(V(95.252902, 46.587612, 0), V(95.252902, 47.587612, 0)), False)
sketch8.addGeometry(Part.LineSegment(V(95.252902, 47.587612, 0), V(79.990459, 47.587612, 0)), False)
sketch8.addGeometry(Part.LineSegment(V(79.990459, 47.587612, 0), V(79.990459, 66.087612, 0)), False)
sketch8.addGeometry(Part.LineSegment(V(79.990459, 66.087612, 0), V(108.990459, 66.087612, 0)), False)
sketch8.addGeometry(Part.LineSegment(V(108.990459, 66.087612, 0), V(108.990459, 47.587612, 0)), False)
sketch8.addGeometry(Part.LineSegment(V(108.990459, 47.587612, 0), V(103.252902, 47.587612, 0)), False)
sketch8.addGeometry(Part.LineSegment(V(103.252902, 47.587612, 0), V(103.252902, 46.587612, 0)), False)
sketch8.addGeometry(Part.LineSegment(V(103.252902, 46.587612, 0), V(119.953269, 46.587612, 0)), False)
sketch8.addGeometry(Part.LineSegment(V(119.953269, 46.587612, 0), V(119.953269, 41.163061, 0)), False)
sketch8.addGeometry(Part.LineSegment(V(119.953269, 41.163061, 0), V(120.953269, 41.163061, 0)), False)
sketch8.addGeometry(Part.LineSegment(V(120.953269, 41.163061, 0), V(120.953269, 47.587612, 0)), False)
sketch8.addGeometry(Part.LineSegment(V(120.953269, 47.587612, 0), V(109.990459, 47.587612, 0)), False)
sketch8.addGeometry(Part.LineSegment(V(109.990459, 47.587612, 0), V(109.990459, 66.087612, 0)), False)
sketch8.addGeometry(Part.LineSegment(V(109.990459, 66.087612, 0), V(153.740459, 66.087612, 0)), False)
sketch8.addGeometry(Part.LineSegment(V(153.740459, 66.087612, 0), V(153.740459, 57.762896, 0)), False)
sketch8.addGeometry(Part.LineSegment(V(153.740459, 57.762896, 0), V(156.240459, 57.762896, 0)), False)
sketch8.addGeometry(Part.LineSegment(V(156.240459, 57.762896, 0), V(156.240459, 68.587612, 0)), False)
sketch8.addConstraint(Sketcher.Constraint("Coincident", 0, 2, 1, 1))
sketch8.addConstraint(Sketcher.Constraint("Coincident", 1, 2, 2, 1))
sketch8.addConstraint(Sketcher.Constraint("Coincident", 2, 2, 3, 1))
sketch8.addConstraint(Sketcher.Constraint("Coincident", 3, 2, 4, 1))
sketch8.addConstraint(Sketcher.Constraint("Coincident", 4, 2, 5, 1))
sketch8.addConstraint(Sketcher.Constraint("Coincident", 5, 2, 6, 1))
sketch8.addConstraint(Sketcher.Constraint("Coincident", 6, 2, 7, 1))
sketch8.addConstraint(Sketcher.Constraint("Coincident", 7, 2, 8, 1))
sketch8.addConstraint(Sketcher.Constraint("Coincident", 8, 2, 9, 1))
sketch8.addConstraint(Sketcher.Constraint("Coincident", 9, 2, 10, 1))
sketch8.addConstraint(Sketcher.Constraint("Coincident", 10, 2, 11, 1))
sketch8.addConstraint(Sketcher.Constraint("Coincident", 11, 2, 12, 1))
sketch8.addConstraint(Sketcher.Constraint("Coincident", 12, 2, 13, 1))
sketch8.addConstraint(Sketcher.Constraint("Coincident", 13, 2, 14, 1))
sketch8.addConstraint(Sketcher.Constraint("Coincident", 14, 2, 15, 1))
sketch8.addConstraint(Sketcher.Constraint("Coincident", 15, 2, 16, 1))
sketch8.addConstraint(Sketcher.Constraint("Coincident", 16, 2, 17, 1))
sketch8.addConstraint(Sketcher.Constraint("Coincident", 17, 2, 18, 1))
sketch8.addConstraint(Sketcher.Constraint("Coincident", 18, 2, 19, 1))
sketch8.addConstraint(Sketcher.Constraint("Coincident", 19, 2, 20, 1))
sketch8.addConstraint(Sketcher.Constraint("Coincident", 20, 2, 21, 1))
sketch8.addConstraint(Sketcher.Constraint("Coincident", 21, 2, 22, 1))
sketch8.addConstraint(Sketcher.Constraint("Coincident", 22, 2, 23, 1))
sketch8.addConstraint(Sketcher.Constraint("Coincident", 23, 2, 24, 1))
sketch8.addConstraint(Sketcher.Constraint("Coincident", 24, 2, 25, 1))
sketch8.addConstraint(Sketcher.Constraint("Coincident", 25, 2, 26, 1))
sketch8.addConstraint(Sketcher.Constraint("Coincident", 26, 2, 27, 1))
sketch8.addConstraint(Sketcher.Constraint("Coincident", 27, 2, 28, 1))
sketch8.addConstraint(Sketcher.Constraint("Coincident", 28, 2, 29, 1))
sketch8.addConstraint(Sketcher.Constraint("Coincident", 29, 2, 30, 1))
sketch8.addConstraint(Sketcher.Constraint("Coincident", 30, 2, 31, 1))
sketch8.addConstraint(Sketcher.Constraint("Coincident", 31, 2, 32, 1))
sketch8.addConstraint(Sketcher.Constraint("Coincident", 32, 2, 33, 1))
sketch8.addConstraint(Sketcher.Constraint("Coincident", 33, 2, 0, 1))
sketch8.addConstraint(Sketcher.Constraint("Horizontal", 0))
sketch8.addConstraint(Sketcher.Constraint("Vertical", 1))
sketch8.addConstraint(Sketcher.Constraint("Horizontal", 2))
sketch8.addConstraint(Sketcher.Constraint("Vertical", 3))
sketch8.addConstraint(Sketcher.Constraint("Horizontal", 4))
sketch8.addConstraint(Sketcher.Constraint("Vertical", 5))
sketch8.addConstraint(Sketcher.Constraint("Horizontal", 6))
sketch8.addConstraint(Sketcher.Constraint("Vertical", 7))
sketch8.addConstraint(Sketcher.Constraint("Horizontal", 8))
sketch8.addConstraint(Sketcher.Constraint("Vertical", 9))
sketch8.addConstraint(Sketcher.Constraint("Horizontal", 10))
sketch8.addConstraint(Sketcher.Constraint("Vertical", 11))
sketch8.addConstraint(Sketcher.Constraint("Horizontal", 12))
sketch8.addConstraint(Sketcher.Constraint("Vertical", 13))
sketch8.addConstraint(Sketcher.Constraint("Horizontal", 14))
sketch8.addConstraint(Sketcher.Constraint("Vertical", 15))
sketch8.addConstraint(Sketcher.Constraint("Horizontal", 16))
sketch8.addConstraint(Sketcher.Constraint("Vertical", 17))
sketch8.addConstraint(Sketcher.Constraint("Horizontal", 18))
sketch8.addConstraint(Sketcher.Constraint("Vertical", 19))
sketch8.addConstraint(Sketcher.Constraint("Horizontal", 20))
sketch8.addConstraint(Sketcher.Constraint("Vertical", 21))
sketch8.addConstraint(Sketcher.Constraint("Horizontal", 22))
sketch8.addConstraint(Sketcher.Constraint("Vertical", 23))
sketch8.addConstraint(Sketcher.Constraint("Horizontal", 24))
sketch8.addConstraint(Sketcher.Constraint("Vertical", 25))
sketch8.addConstraint(Sketcher.Constraint("Horizontal", 26))
sketch8.addConstraint(Sketcher.Constraint("Vertical", 27))
sketch8.addConstraint(Sketcher.Constraint("Horizontal", 28))
sketch8.addConstraint(Sketcher.Constraint("Vertical", 29))
sketch8.addConstraint(Sketcher.Constraint("Horizontal", 30))
sketch8.addConstraint(Sketcher.Constraint("Vertical", 31))
sketch8.addConstraint(Sketcher.Constraint("Horizontal", 32))
sketch8.addConstraint(Sketcher.Constraint("Vertical", 33))
sketch8.addConstraint(Sketcher.Constraint("Horizontal", 2, 2, 5, 2))
sketch8.addConstraint(Sketcher.Constraint("Horizontal", 6, 2, 11, 2))
sketch8.addConstraint(Sketcher.Constraint("Horizontal", 10, 2, 13, 2))
sketch8.addConstraint(Sketcher.Constraint("Horizontal", 8, 2, 15, 2))
sketch8.addConstraint(Sketcher.Constraint("Horizontal", 14, 2, 17, 2))
sketch8.addConstraint(Sketcher.Constraint("Horizontal", 12, 2, 19, 2))
sketch8.addConstraint(Sketcher.Constraint("Horizontal", 18, 2, 21, 2))
sketch8.addConstraint(Sketcher.Constraint("Horizontal", 16, 2, 23, 2))
sketch8.addConstraint(Sketcher.Constraint("Horizontal", 22, 2, 27, 2))
sketch8.addConstraint(Sketcher.Constraint("Horizontal", 20, 2, 29, 2))
sketch8.addConstraint(Sketcher.Constraint("Equal", 4, 26))
sketch8.addConstraint(Sketcher.Constraint("Equal", 32, 1))
sketch8.addConstraint(Sketcher.Constraint("Equal", 26, 9))
sketch8.addConstraint(Sketcher.Constraint("DistanceX", 4, 1, 4, 2, 1.0))
sketch8.addConstraint(Sketcher.Constraint("DistanceX", 12, 1, 12, 2, 14.0))
sketch8.addConstraint(Sketcher.Constraint("DistanceX", 20, 1, 20, 2, 29.0))
sketch8.addConstraint(Sketcher.Constraint("DistanceX", 32, 1, 32, 2, 2.5))
sketch8.addConstraint(Sketcher.Constraint("DistanceY", 7, 2, 7, 1, 19.5))
sketch8.addConstraint(Sketcher.Constraint("DistanceX", 7, 2, 10, 2, 1.0))
sketch8.addConstraint(Sketcher.Constraint("DistanceX", 9, 2, 14, 2, 8.0))
sketch8.addConstraint(Sketcher.Constraint("DistanceX", 13, 2, 18, 2, 1.0))
sketch8.addConstraint(Sketcher.Constraint("DistanceX", 17, 2, 22, 2, 8.0))
sketch8.addConstraint(Sketcher.Constraint("DistanceX", 21, 2, 28, 2, 1.0))
sketch8.addConstraint(Sketcher.Constraint("DistanceX", 30, 1, 30, 2, 43.75))
sketch8.addConstraint(Sketcher.Constraint("DistanceX", 8, 1, 8, 2, 2.262299))
sketch8.addConstraint(Sketcher.Constraint("DistanceX", 2, 1, 2, 2, 20.65175))
sketch8.addConstraint(Sketcher.Constraint("DistanceX", 28, 2, 28, 1, 10.96281))
sketch8.addConstraint(Sketcher.Constraint("DistanceY", 3, 2, 3, 1, 9.892438))
sketch8.addConstraint(Sketcher.Constraint("DistanceY", 25, 2, 25, 1, 5.424552))
sketch8.addConstraint(Sketcher.Constraint("DistanceX", 0, 2, 0, 1, 130.527903))
sketch8.addConstraint(Sketcher.Constraint("DistanceX", 16, 1, 16, 2, 21.000144))
sketch8.addConstraint(Sketcher.Constraint("DistanceY", 31, 2, 31, 1, 8.324716))
sketch8.addConstraint(Sketcher.Constraint("DistanceX", -1, 1, 6, 2, 63.990459))
sketch8.addConstraint(Sketcher.Constraint("DistanceY", -1, 1, 25, 2, 41.163061))
pad8 = body8.newObject("PartDesign::Pad", "Pad007")
pad8.Profile = sketch8
pad8.Length = 10

doc.recompute()
